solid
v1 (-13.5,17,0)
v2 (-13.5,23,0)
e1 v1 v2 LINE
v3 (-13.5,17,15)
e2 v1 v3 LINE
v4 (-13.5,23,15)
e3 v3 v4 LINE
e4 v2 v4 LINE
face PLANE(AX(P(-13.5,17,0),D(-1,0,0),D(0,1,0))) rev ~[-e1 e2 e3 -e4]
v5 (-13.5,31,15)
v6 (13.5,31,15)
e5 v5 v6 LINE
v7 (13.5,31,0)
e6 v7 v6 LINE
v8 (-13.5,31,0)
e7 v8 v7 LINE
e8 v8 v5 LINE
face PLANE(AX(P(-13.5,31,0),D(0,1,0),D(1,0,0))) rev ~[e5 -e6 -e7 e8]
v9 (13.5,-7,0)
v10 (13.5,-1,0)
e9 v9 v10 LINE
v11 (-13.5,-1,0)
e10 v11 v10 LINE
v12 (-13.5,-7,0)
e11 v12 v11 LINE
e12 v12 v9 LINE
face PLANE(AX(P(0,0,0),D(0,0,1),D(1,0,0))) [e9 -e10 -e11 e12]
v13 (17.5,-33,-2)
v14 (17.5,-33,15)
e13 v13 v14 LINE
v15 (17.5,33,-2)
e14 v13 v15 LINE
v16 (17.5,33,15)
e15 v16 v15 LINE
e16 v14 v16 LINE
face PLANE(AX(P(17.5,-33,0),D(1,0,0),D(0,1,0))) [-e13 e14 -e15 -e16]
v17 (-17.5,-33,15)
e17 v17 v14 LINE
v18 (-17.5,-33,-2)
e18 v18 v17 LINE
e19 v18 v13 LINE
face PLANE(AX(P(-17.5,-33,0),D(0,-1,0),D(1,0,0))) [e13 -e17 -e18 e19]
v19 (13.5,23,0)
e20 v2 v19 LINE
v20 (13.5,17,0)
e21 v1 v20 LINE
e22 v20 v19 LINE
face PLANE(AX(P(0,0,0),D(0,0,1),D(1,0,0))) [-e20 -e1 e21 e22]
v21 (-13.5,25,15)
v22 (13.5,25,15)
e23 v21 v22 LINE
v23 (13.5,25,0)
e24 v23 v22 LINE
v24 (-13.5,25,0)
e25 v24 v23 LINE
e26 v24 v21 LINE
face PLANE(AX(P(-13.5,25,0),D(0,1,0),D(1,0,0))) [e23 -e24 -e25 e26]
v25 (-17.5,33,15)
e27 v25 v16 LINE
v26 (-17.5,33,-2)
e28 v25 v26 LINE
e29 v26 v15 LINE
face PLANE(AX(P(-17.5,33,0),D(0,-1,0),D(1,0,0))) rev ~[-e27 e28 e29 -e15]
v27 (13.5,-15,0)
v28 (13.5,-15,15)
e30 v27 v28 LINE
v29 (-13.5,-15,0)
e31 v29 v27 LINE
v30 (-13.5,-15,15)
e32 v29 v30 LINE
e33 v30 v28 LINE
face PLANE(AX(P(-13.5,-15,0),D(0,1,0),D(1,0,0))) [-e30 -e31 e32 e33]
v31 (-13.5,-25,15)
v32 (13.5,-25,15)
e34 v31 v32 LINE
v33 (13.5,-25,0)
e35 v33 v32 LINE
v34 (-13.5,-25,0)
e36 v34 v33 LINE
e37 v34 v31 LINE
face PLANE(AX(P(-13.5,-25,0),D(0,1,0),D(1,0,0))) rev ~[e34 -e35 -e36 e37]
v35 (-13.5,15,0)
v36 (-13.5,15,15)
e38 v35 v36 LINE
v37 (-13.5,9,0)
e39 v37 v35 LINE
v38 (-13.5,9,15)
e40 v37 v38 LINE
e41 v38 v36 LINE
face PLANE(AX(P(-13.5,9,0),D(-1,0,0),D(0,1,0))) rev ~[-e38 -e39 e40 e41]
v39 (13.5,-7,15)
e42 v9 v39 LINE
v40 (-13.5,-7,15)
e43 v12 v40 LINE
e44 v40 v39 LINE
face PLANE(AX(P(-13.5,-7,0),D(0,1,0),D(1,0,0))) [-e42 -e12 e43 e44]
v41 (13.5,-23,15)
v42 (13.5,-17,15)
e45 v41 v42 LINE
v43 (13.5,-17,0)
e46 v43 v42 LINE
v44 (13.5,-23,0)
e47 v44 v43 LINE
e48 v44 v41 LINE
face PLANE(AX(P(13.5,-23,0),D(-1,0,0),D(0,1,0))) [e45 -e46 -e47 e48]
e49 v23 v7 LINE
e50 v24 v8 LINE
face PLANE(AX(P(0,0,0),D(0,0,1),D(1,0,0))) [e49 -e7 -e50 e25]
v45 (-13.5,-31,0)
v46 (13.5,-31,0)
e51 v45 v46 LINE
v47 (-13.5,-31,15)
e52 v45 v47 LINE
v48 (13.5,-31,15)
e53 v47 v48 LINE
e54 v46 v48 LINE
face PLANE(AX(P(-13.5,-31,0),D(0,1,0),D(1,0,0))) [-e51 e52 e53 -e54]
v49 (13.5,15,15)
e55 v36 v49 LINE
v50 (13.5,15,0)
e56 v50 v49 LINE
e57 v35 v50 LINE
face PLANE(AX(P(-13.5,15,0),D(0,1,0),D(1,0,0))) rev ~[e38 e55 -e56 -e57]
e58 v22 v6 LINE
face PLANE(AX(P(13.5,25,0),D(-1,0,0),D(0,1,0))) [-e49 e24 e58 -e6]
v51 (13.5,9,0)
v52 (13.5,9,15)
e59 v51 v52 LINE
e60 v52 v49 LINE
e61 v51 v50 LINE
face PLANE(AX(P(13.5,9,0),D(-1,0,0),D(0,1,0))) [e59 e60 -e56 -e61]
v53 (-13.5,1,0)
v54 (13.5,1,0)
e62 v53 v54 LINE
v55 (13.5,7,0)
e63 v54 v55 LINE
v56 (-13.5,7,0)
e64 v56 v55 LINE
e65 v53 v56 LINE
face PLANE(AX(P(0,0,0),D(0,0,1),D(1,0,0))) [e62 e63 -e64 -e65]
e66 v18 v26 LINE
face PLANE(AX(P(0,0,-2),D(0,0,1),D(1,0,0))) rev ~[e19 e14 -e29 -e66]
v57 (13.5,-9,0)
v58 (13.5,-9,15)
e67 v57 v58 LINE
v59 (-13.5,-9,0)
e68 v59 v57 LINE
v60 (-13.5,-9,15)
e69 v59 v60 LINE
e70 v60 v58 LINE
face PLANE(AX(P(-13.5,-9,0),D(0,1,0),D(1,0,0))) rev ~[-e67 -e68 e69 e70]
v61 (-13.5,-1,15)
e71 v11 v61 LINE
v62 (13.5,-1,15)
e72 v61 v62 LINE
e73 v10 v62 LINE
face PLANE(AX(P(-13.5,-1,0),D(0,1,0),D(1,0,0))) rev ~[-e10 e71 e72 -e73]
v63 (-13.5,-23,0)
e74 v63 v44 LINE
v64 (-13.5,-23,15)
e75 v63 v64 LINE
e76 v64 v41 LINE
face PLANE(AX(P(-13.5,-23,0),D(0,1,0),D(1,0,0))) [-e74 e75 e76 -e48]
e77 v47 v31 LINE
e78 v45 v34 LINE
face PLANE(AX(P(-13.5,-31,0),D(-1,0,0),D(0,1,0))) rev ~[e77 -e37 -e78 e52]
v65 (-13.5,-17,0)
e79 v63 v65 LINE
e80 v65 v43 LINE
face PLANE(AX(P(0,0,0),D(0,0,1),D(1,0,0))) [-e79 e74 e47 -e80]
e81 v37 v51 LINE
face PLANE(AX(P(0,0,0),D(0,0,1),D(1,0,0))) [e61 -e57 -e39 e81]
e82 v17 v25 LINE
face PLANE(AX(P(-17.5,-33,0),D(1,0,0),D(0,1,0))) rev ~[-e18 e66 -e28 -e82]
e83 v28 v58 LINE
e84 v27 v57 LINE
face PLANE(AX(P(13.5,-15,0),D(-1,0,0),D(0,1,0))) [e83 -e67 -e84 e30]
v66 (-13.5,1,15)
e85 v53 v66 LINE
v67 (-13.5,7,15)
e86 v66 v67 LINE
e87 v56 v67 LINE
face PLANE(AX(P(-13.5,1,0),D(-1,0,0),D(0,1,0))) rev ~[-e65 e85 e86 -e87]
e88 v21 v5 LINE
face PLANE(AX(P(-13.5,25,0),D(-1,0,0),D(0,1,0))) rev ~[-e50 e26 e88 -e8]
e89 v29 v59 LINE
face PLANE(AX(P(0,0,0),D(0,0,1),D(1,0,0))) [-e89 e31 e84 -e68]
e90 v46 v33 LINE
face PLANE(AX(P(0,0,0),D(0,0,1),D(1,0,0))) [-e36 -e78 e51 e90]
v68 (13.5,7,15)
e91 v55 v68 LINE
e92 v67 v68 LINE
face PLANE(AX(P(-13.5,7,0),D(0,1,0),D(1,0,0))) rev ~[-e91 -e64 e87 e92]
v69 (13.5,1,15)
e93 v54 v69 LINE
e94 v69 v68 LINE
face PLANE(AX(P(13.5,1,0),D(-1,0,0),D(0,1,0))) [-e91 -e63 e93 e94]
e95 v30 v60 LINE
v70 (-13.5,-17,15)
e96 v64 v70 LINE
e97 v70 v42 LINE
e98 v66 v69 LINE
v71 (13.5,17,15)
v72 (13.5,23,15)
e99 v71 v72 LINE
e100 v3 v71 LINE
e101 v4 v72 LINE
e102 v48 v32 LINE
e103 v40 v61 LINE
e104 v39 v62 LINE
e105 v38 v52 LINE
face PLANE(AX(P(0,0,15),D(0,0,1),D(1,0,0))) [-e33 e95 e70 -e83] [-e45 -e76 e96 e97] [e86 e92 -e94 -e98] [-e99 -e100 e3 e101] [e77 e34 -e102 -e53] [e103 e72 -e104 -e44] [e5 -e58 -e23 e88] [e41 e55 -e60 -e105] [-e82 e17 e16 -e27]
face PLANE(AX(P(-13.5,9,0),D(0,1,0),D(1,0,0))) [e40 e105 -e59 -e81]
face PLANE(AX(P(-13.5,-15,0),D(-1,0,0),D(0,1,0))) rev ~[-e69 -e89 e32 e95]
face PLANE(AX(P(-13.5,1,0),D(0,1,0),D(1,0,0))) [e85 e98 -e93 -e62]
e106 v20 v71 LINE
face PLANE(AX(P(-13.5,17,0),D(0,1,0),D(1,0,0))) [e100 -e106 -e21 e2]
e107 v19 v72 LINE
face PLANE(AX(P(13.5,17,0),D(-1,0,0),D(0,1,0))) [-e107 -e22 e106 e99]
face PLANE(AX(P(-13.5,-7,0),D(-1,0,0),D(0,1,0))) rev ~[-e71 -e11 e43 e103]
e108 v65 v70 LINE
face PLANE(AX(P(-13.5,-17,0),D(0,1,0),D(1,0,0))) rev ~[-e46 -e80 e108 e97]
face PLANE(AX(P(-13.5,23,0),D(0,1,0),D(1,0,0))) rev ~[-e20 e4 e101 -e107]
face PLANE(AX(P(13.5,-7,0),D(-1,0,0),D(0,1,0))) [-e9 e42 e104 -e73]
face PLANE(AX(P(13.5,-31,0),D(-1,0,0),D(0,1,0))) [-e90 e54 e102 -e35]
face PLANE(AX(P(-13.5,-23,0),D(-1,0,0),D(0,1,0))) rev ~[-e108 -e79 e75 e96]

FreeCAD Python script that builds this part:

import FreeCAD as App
import Part
import Sketcher

V = App.Vector

doc = App.newDocument("Part")
body = doc.addObject("PartDesign::Body", "Body")

# Sketch on XY plane
sketch1 = body.newObject("Sketcher::SketchObject", "Sketch")
sketch1.AttachmentSupport = (doc.getObject("XY_Plane"), [""])
sketch1.MapMode = "FlatFace"
sketch1.addGeometry([
    Part.LineSegment(V(-18, 33, 0), V(-18, -33, 0)),  # 0
    Part.LineSegment(V(-18, -33, 0), V(18, -33, 0)),  # 1
    Part.LineSegment(V(18, -33, 0), V(18, 33, 0)),  # 2
    Part.LineSegment(V(18, 33, 0), V(-18, 33, 0)),  # 3
    Part.LineSegment(V(14, -31, 0), V(-14, -31, 0)),  # 4
    Part.LineSegment(V(-14, -31, 0), V(-14, -25, 0)),  # 5
    Part.LineSegment(V(-14, -25, 0), V(14, -25, 0)),  # 6
    Part.LineSegment(V(14, -25, 0), V(14, -31, 0)),  # 7
    Part.LineSegment(V(14, -23, 0), V(-14, -23, 0)),  # 8
    Part.LineSegment(V(-14, -23, 0), V(-14, -17, 0)),  # 9
    Part.LineSegment(V(-14, -17, 0), V(14, -17, 0)),  # 10
    Part.LineSegment(V(14, -17, 0), V(14, -23, 0)),  # 11
    Part.LineSegment(V(14, -15, 0), V(-14, -15, 0)),  # 12
    Part.LineSegment(V(-14, -15, 0), V(-14, -9, 0)),  # 13
    Part.LineSegment(V(-14, -9, 0), V(14, -9, 0)),  # 14
    Part.LineSegment(V(14, -9, 0), V(14, -15, 0)),  # 15
    Part.LineSegment(V(14, -7, 0), V(-14, -7, 0)),  # 16
    Part.LineSegment(V(-14, -7, 0), V(-14, -1, 0)),  # 17
    Part.LineSegment(V(-14, -1, 0), V(14, -1, 0)),  # 18
    Part.LineSegment(V(14, -1, 0), V(14, -7, 0)),  # 19
    Part.LineSegment(V(14, 1, 0), V(-14, 1, 0)),  # 20
    Part.LineSegment(V(-14, 1, 0), V(-14, 7, 0)),  # 21
    Part.LineSegment(V(-14, 7, 0), V(14, 7, 0)),  # 22
    Part.LineSegment(V(14, 7, 0), V(14, 1, 0)),  # 23
    Part.LineSegment(V(14, 9, 0), V(-14, 9, 0)),  # 24
    Part.LineSegment(V(-14, 9, 0), V(-14, 15, 0)),  # 25
    Part.LineSegment(V(-14, 15, 0), V(14, 15, 0)),  # 26
    Part.LineSegment(V(14, 15, 0), V(14, 9, 0)),  # 27
    Part.LineSegment(V(14, 17, 0), V(-14, 17, 0)),  # 28
    Part.LineSegment(V(-14, 17, 0), V(-14, 23, 0)),  # 29
    Part.LineSegment(V(-14, 23, 0), V(14, 23, 0)),  # 30
    Part.LineSegment(V(14, 23, 0), V(14, 17, 0)),  # 31
    Part.LineSegment(V(14, 25, 0), V(-14, 25, 0)),  # 32
    Part.LineSegment(V(-14, 25, 0), V(-14, 31, 0)),  # 33
    Part.LineSegment(V(-14, 31, 0), V(14, 31, 0)),  # 34
    Part.LineSegment(V(14, 31, 0), V(14, 25, 0)),  # 35
], False)
sketch1.addConstraint([
    Sketcher.Constraint("Coincident", 0, 2, 1, 1),
    Sketcher.Constraint("Coincident", 1, 2, 2, 1),
    Sketcher.Constraint("Coincident", 2, 2, 3, 1),
    Sketcher.Constraint("Coincident", 3, 2, 0, 1),
    Sketcher.Constraint("Coincident", 4, 2, 5, 1),
    Sketcher.Constraint("Coincident", 5, 2, 6, 1),
    Sketcher.Constraint("Coincident", 6, 2, 7, 1),
    Sketcher.Constraint("Coincident", 7, 2, 4, 1),
    Sketcher.Constraint("Coincident", 8, 2, 9, 1),
    Sketcher.Constraint("Coincident", 9, 2, 10, 1),
    Sketcher.Constraint("Coincident", 10, 2, 11, 1),
    Sketcher.Constraint("Coincident", 11, 2, 8, 1),
    Sketcher.Constraint("Coincident", 12, 2, 13, 1),
    Sketcher.Constraint("Coincident", 13, 2, 14, 1),
    Sketcher.Constraint("Coincident", 14, 2, 15, 1),
    Sketcher.Constraint("Coincident", 15, 2, 12, 1),
    Sketcher.Constraint("Coincident", 16, 2, 17, 1),
    Sketcher.Constraint("Coincident", 17, 2, 18, 1),
    Sketcher.Constraint("Coincident", 18, 2, 19, 1),
    Sketcher.Constraint("Coincident", 19, 2, 16, 1),
    Sketcher.Constraint("Coincident", 20, 2, 21, 1),
    Sketcher.Constraint("Coincident", 21, 2, 22, 1),
    Sketcher.Constraint("Coincident", 22, 2, 23, 1),
    Sketcher.Constraint("Coincident", 23, 2, 20, 1),
    Sketcher.Constraint("Coincident", 24, 2, 25, 1),
    Sketcher.Constraint("Coincident", 25, 2, 26, 1),
    Sketcher.Constraint("Coincident", 26, 2, 27, 1),
    Sketcher.Constraint("Coincident", 27, 2, 24, 1),
    Sketcher.Constraint("Coincident", 28, 2, 29, 1),
    Sketcher.Constraint("Coincident", 29, 2, 30, 1),
    Sketcher.Constraint("Coincident", 30, 2, 31, 1),
    Sketcher.Constraint("Coincident", 31, 2, 28, 1),
    Sketcher.Constraint("Coincident", 32, 2, 33, 1),
    Sketcher.Constraint("Coincident", 33, 2, 34, 1),
    Sketcher.Constraint("Coincident", 34, 2, 35, 1),
    Sketcher.Constraint("Coincident", 35, 2, 32, 1),
    Sketcher.Constraint("Vertical", 0),
    Sketcher.Constraint("Horizontal", 1),
    Sketcher.Constraint("Vertical", 2),
    Sketcher.Constraint("Horizontal", 3),
    Sketcher.Constraint("Horizontal", 4),
    Sketcher.Constraint("Vertical", 5),
    Sketcher.Constraint("Horizontal", 6),
    Sketcher.Constraint("Vertical", 7),
    Sketcher.Constraint("Horizontal", 8),
    Sketcher.Constraint("Vertical", 9),
    Sketcher.Constraint("Horizontal", 10),
    Sketcher.Constraint("Vertical", 11),
    Sketcher.Constraint("Horizontal", 12),
    Sketcher.Constraint("Vertical", 13),
    Sketcher.Constraint("Horizontal", 14),
    Sketcher.Constraint("Vertical", 15),
    Sketcher.Constraint("Horizontal", 16),
    Sketcher.Constraint("Vertical", 17),
    Sketcher.Constraint("Horizontal", 18),
    Sketcher.Constraint("Vertical", 19),
    Sketcher.Constraint("Horizontal", 20),
    Sketcher.Constraint("Vertical", 21),
    Sketcher.Constraint("Horizontal", 22),
    Sketcher.Constraint("Vertical", 23),
    Sketcher.Constraint("Horizontal", 24),
    Sketcher.Constraint("Vertical", 25),
    Sketcher.Constraint("Horizontal", 26),
    Sketcher.Constraint("Vertical", 27),
    Sketcher.Constraint("Horizontal", 28),
    Sketcher.Constraint("Vertical", 29),
    Sketcher.Constraint("Horizontal", 30),
    Sketcher.Constraint("Vertical", 31),
    Sketcher.Constraint("Horizontal", 32),
    Sketcher.Constraint("Vertical", 33),
    Sketcher.Constraint("Horizontal", 34),
    Sketcher.Constraint("Vertical", 35),
    Sketcher.Constraint("Symmetric", 0, 2, 2, 2, -1, 1),
    Sketcher.Constraint("Symmetric", 18, 2, 20, 2, -1, 1),
    Sketcher.Constraint("Symmetric", 16, 2, 22, 2, -1, 1),
    Sketcher.Constraint("Symmetric", 14, 2, 24, 2, -1, 1),
    Sketcher.Constraint("Symmetric", 12, 2, 26, 2, -1, 1),
    Sketcher.Constraint("Symmetric", 10, 2, 28, 2, -1, 1),
    Sketcher.Constraint("Symmetric", 8, 2, 30, 2, -1, 1),
    Sketcher.Constraint("Symmetric", 6, 2, 32, 2, -1, 1),
    Sketcher.Constraint("Symmetric", 4, 2, 34, 2, -1, 1),
    Sketcher.Constraint("Vertical", 5, 2, 8, 2),
    Sketcher.Constraint("Vertical", 7, 2, 10, 2),
    Sketcher.Constraint("Vertical", 9, 2, 12, 2),
    Sketcher.Constraint("Vertical", 11, 2, 14, 2),
    Sketcher.Constraint("Vertical", 13, 2, 16, 2),
    Sketcher.Constraint("Vertical", 15, 2, 18, 2),
    Sketcher.Constraint("Vertical", 17, 2, 20, 2),
    Sketcher.Constraint("Equal", 7, 9),
    Sketcher.Constraint("Equal", 11, 13),
    Sketcher.Constraint("Equal", 15, 17),
    Sketcher.Constraint("DistanceX", 1, 1, 1, 2, 35.0),
    Sketcher.Constraint("DistanceX", 4, 2, 4, 1, 27.0),
    Sketcher.Constraint("DistanceY", 0, 2, 0, 1, 66.0),
    Sketcher.Constraint("DistanceY", 5, 1, 5, 2, 6.0),
    Sketcher.Constraint("DistanceY", 4, 2, -1, 1, 31.0),
    Sketcher.Constraint("DistanceY", 8, 2, -1, 1, 23.0),
    Sketcher.Constraint("DistanceY", 12, 2, -1, 1, 15.0),
    Sketcher.Constraint("DistanceY", 16, 2, -1, 1, 7.0),
])
pad1 = body.newObject("PartDesign::Pad", "Pad")
pad1.Profile = sketch1
pad1.Length = 15

# Sketch on XY plane
sketch2 = body.newObject("Sketcher::SketchObject", "Sketch001")
sketch2.AttachmentSupport = (doc.getObject("XY_Plane"), [""])
sketch2.MapMode = "FlatFace"
sketch2.addGeometry([
    Part.LineSegment(V(-18, 33, 0), V(-18, -33, 0)),
    Part.LineSegment(V(-18, -33, 0), V(18, -33, 0)),
    Part.LineSegment(V(18, -33, 0), V(18, 33, 0)),
    Part.LineSegment(V(18, 33, 0), V(-18, 33, 0)),
], False)
sketch2.addConstraint([
    Sketcher.Constraint("Coincident", 0, 2, 1, 1),
    Sketcher.Constraint("Coincident", 1, 2, 2, 1),
    Sketcher.Constraint("Coincident", 2, 2, 3, 1),
    Sketcher.Constraint("Coincident", 3, 2, 0, 1),
    Sketcher.Constraint("Vertical", 0),
    Sketcher.Constraint("Horizontal", 1),
    Sketcher.Constraint("Vertical", 2),
    Sketcher.Constraint("Horizontal", 3),
    Sketcher.Constraint("Symmetric", 0, 2, 2, 2, -1, 1),
    Sketcher.Constraint("DistanceX", 1, 1, 1, 2, 35.0),
    Sketcher.Constraint("DistanceY", 0, 2, 0, 1, 66.0),
])
pad2 = body.newObject("PartDesign::Pad", "Pad001")
pad2.Profile = sketch2
pad2.Length = 2
pad2.Reversed = True

doc.recompute()
